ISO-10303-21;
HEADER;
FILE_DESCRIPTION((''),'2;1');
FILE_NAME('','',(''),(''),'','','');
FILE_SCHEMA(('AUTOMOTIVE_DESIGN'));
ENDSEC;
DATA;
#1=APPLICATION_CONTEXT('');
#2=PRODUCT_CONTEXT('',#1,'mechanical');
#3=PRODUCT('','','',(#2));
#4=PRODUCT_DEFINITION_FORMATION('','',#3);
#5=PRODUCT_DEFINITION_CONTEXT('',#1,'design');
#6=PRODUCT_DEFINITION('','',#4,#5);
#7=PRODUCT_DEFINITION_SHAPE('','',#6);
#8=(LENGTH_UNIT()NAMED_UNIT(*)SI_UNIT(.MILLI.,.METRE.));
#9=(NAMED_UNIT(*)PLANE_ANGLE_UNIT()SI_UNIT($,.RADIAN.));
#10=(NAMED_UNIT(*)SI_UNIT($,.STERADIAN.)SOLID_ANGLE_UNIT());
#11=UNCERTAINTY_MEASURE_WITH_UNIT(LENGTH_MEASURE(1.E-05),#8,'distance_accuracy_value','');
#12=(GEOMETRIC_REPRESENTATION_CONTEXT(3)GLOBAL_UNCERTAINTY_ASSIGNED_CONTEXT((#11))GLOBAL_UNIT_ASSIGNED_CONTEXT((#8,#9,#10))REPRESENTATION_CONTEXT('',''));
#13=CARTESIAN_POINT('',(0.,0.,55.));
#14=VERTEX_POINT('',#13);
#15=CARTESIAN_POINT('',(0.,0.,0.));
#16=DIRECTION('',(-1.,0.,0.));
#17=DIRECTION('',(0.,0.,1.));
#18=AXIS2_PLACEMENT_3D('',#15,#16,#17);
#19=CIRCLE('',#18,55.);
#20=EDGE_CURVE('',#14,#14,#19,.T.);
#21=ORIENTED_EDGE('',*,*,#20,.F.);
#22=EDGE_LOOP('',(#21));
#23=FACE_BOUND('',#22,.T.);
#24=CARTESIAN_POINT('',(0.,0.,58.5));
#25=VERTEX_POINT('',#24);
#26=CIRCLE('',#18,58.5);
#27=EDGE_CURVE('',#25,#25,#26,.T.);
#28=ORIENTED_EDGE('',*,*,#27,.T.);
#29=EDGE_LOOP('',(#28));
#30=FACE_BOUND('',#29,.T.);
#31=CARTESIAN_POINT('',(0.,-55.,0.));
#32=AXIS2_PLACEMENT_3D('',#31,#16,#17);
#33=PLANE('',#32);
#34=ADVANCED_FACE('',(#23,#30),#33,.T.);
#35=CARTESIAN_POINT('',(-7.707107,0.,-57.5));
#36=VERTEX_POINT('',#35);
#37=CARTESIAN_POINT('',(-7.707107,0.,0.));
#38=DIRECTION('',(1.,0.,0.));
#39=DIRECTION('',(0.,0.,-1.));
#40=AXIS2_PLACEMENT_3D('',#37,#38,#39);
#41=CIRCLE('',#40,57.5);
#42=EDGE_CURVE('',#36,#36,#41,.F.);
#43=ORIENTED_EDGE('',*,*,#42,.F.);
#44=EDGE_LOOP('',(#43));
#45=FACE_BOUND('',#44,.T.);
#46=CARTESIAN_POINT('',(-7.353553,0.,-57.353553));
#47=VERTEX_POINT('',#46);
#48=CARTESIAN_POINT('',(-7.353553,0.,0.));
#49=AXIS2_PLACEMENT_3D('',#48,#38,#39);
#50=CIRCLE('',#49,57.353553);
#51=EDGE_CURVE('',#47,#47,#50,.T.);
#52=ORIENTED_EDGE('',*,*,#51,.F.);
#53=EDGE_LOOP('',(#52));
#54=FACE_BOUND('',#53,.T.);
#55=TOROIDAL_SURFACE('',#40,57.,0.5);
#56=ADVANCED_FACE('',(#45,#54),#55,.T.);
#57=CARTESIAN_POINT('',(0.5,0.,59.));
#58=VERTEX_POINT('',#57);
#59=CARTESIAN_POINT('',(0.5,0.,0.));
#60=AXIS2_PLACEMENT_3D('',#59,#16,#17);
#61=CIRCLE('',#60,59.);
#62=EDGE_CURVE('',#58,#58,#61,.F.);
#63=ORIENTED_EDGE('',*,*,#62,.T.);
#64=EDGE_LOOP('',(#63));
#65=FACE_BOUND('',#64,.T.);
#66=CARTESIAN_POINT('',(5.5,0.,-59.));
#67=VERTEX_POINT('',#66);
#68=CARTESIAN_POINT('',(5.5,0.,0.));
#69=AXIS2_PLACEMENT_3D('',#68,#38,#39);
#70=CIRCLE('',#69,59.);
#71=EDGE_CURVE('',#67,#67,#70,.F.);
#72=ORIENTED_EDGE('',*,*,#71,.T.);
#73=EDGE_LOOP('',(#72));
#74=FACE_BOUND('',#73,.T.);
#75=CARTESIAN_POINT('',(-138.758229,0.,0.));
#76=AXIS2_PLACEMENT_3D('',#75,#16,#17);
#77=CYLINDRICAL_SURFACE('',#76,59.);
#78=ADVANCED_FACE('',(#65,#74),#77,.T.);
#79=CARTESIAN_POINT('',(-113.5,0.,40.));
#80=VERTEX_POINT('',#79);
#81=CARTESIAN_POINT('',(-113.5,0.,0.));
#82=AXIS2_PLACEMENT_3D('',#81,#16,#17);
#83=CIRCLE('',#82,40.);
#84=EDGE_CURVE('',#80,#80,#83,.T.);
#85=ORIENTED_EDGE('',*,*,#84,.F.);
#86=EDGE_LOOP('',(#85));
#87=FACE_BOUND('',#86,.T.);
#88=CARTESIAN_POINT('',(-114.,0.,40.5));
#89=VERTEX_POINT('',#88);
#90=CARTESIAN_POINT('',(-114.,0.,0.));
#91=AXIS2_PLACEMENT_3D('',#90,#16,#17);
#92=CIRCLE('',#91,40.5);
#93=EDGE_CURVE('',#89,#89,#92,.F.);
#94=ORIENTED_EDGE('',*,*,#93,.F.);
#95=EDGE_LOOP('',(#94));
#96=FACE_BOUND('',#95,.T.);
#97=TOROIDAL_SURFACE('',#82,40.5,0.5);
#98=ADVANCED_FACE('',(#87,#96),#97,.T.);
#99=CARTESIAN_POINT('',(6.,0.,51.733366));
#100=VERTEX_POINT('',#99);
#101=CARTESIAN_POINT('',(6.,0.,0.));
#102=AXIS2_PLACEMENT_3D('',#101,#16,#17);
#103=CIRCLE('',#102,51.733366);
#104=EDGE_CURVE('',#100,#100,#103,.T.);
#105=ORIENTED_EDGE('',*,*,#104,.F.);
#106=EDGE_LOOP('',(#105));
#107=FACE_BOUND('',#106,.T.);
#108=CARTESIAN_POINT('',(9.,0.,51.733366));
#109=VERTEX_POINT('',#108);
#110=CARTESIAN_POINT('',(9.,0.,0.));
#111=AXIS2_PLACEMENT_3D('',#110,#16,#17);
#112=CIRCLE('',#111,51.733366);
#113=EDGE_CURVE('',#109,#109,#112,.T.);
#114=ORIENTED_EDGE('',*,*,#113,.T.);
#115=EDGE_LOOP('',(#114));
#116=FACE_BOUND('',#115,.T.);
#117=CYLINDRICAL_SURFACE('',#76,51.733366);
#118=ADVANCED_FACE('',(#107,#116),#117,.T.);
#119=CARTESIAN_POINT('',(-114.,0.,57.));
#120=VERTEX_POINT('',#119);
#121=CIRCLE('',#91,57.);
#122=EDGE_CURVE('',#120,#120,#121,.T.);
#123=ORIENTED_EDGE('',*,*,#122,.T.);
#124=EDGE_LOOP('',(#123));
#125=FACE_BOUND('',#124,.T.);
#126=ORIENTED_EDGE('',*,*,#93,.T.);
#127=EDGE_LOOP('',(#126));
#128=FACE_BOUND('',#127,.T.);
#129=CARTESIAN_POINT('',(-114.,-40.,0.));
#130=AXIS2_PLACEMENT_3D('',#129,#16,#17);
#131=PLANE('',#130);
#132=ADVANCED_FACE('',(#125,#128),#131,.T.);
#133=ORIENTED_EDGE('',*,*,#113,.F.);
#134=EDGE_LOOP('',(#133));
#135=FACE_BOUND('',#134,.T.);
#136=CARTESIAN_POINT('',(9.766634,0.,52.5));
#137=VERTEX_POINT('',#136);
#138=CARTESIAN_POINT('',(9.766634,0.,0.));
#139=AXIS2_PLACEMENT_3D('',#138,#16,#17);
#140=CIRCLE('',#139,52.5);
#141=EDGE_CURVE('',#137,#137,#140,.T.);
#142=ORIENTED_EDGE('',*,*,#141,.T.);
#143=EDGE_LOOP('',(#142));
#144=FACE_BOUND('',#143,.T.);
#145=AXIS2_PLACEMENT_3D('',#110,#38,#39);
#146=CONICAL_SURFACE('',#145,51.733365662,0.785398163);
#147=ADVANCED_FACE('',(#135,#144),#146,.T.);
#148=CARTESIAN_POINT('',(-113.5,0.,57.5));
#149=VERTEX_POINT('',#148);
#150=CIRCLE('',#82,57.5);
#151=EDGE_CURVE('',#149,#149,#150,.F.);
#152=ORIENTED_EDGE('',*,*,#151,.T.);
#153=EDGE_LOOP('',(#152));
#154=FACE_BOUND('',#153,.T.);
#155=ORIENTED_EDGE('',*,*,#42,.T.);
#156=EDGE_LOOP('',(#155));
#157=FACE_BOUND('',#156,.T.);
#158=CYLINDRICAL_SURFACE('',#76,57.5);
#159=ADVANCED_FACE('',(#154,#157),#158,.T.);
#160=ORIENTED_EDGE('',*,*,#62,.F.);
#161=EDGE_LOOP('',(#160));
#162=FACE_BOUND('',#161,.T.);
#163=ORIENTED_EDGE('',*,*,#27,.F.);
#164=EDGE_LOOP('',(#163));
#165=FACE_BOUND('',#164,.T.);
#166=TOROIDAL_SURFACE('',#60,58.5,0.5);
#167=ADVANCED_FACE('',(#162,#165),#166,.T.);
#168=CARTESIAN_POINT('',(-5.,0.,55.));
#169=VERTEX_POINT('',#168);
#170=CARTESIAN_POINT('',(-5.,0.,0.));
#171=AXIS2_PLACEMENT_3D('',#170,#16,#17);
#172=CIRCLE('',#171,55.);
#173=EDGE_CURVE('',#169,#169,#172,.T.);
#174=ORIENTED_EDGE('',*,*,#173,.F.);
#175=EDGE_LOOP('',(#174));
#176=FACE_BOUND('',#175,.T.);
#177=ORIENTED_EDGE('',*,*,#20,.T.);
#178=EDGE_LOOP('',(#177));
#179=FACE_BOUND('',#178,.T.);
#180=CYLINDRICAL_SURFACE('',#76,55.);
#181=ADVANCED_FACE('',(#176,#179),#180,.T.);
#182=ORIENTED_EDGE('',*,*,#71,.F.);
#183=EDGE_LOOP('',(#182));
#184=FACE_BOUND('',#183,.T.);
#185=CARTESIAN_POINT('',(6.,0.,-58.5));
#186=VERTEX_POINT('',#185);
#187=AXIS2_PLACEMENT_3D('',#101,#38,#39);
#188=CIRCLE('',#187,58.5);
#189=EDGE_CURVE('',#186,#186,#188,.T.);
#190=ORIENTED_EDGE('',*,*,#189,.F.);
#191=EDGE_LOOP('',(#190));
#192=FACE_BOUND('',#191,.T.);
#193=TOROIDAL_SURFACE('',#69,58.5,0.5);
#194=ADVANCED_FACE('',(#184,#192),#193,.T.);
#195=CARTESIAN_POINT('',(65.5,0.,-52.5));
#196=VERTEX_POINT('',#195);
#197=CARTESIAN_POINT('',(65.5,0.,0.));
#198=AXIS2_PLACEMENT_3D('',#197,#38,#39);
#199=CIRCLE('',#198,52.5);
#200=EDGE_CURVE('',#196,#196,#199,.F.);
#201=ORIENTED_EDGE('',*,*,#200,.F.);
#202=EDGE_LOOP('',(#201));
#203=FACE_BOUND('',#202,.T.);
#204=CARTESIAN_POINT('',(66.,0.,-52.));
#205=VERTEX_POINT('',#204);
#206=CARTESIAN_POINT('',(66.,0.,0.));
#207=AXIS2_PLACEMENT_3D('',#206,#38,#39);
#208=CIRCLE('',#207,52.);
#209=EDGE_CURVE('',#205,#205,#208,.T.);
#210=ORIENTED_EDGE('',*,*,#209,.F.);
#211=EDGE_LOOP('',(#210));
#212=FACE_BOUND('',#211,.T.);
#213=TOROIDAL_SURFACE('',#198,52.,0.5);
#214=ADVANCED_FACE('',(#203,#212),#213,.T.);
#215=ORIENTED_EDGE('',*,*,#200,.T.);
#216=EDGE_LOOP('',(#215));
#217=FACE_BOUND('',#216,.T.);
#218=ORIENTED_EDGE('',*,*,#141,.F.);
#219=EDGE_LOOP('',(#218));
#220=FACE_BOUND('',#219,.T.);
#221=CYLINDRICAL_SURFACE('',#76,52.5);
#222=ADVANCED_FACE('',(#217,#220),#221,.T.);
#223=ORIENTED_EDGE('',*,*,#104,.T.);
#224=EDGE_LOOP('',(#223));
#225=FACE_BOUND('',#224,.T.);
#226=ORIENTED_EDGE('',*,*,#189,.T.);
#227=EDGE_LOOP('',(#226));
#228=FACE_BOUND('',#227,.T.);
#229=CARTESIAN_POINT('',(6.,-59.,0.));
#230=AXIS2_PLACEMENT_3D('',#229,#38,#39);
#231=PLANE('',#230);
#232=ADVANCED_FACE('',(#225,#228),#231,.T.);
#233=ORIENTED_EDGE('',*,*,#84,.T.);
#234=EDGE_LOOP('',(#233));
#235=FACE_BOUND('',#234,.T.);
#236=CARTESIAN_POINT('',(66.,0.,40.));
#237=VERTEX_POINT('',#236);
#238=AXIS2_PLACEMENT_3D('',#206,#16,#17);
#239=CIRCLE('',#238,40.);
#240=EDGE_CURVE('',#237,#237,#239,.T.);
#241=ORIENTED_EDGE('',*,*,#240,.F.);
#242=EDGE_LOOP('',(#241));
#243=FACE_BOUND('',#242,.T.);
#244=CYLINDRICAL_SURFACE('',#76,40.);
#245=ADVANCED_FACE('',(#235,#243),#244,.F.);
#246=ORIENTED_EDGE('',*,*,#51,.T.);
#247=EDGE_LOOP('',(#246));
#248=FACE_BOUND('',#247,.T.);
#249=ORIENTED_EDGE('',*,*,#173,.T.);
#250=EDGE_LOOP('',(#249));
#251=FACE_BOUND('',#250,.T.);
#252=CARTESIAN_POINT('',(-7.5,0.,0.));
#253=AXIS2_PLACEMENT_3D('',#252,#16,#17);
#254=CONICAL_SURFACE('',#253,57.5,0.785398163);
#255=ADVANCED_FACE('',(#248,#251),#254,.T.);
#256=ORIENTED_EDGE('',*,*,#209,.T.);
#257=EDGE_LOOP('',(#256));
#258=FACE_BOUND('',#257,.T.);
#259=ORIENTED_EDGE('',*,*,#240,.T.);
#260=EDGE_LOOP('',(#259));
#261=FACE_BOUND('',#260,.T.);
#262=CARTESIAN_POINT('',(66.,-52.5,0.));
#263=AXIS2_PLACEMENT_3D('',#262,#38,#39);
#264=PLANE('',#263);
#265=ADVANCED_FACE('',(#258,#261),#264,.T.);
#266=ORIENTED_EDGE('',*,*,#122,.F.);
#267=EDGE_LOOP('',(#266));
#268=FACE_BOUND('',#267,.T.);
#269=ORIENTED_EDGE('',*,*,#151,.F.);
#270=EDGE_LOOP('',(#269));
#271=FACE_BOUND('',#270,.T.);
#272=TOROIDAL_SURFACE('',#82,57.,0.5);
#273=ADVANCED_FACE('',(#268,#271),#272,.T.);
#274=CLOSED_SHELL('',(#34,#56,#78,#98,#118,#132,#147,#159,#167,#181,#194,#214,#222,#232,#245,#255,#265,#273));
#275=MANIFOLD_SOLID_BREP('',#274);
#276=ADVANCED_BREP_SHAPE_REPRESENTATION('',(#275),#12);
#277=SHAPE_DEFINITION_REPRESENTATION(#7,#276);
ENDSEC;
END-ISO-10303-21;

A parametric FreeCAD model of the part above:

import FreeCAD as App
import Part
import Sketcher
from FreeCAD import Vector
Q = App.Units.Quantity


def edges_at(feature, points):
    """Names of the edges that pass closest to the given points."""
    edges = feature.Shape.Edges
    near = lambda p: min(range(len(edges)), key=lambda i: edges[i].distToShape(Part.Vertex(*p))[0])
    return sorted({f"Edge{near(p) + 1}" for p in points})


def add_polygon(sketch, points):
    """Adds a closed chain of lines whose ends are joined by coincident constraints."""
    first, n = sketch.GeometryCount, len(points)
    for a, b in zip(points, points[1:] + points[:1]):
        sketch.addGeometry(Part.LineSegment(App.Vector(*a, 0), App.Vector(*b, 0)), False)
    for i in range(n):
        sketch.addConstraint(Sketcher.Constraint("Coincident", first + i, 2, first + (i + 1) % n, 1))

doc = App.newDocument("Part")
body = doc.addObject("PartDesign::Body", "Body")

# Sketch on XY plane
sketch1 = body.newObject("Sketcher::SketchObject", "Sketch")
sketch1.AttachmentSupport = (doc.getObject("XY_Plane"), [""])
sketch1.MapMode = "FlatFace"
add_polygon(sketch1, [(-114, -57.5), (-7.5, -57.5), (-5, -55), (0, -55), (0, -59), (6, -59), (6, -51.7), (9, -51.7), (9.8, -52.5), (66, -52.5), (66, -40), (-114, -40)])  # lines 0-11
sketch1.addConstraint([
    Sketcher.Constraint("Horizontal", 0),
    Sketcher.Constraint("Horizontal", 2),
    Sketcher.Constraint("Vertical", 3),
    Sketcher.Constraint("Horizontal", 4),
    Sketcher.Constraint("Vertical", 5),
    Sketcher.Constraint("Horizontal", 6),
    Sketcher.Constraint("Horizontal", 8),
    Sketcher.Constraint("Vertical", 9),
    Sketcher.Constraint("Horizontal", 10),
    Sketcher.Constraint("Vertical", 11),
    Sketcher.Constraint("PointOnObject", 2, 2, -2),
    Sketcher.Constraint("Perpendicular", 1, 7),
    Sketcher.Constraint("DistanceX", 2, 1, 2, 2, Q("5 mm")),
    Sketcher.Constraint("DistanceX", 4, 1, 4, 2, Q("6 mm")),
    Sketcher.Constraint("DistanceX", 6, 1, 6, 2, Q("3 mm")),
    Sketcher.Constraint("DistanceX", 10, 2, 10, 1, Q("180 mm")),
    Sketcher.Constraint("DistanceY", 3, 2, 3, 1, Q("4 mm")),
    Sketcher.Constraint("Angle", 1, Q("45 deg")),
    Sketcher.Constraint("DistanceX", 0, 1, 0, 2, Q("106.5 mm")),
    Sketcher.Constraint("DistanceY", 9, 1, 9, 2, Q("12.5 mm")),
    Sketcher.Constraint("DistanceY", 11, 2, 11, 1, Q("17.5 mm")),
    Sketcher.Constraint("DistanceY", 1, 2, -1, 1, Q("55 mm")),
    Sketcher.Constraint("DistanceX", -1, 1, 8, 2, Q("66 mm")),
    Sketcher.Constraint("DistanceX", 8, 1, 8, 2, Q("56.233366 mm")),
])
revolution = body.newObject("PartDesign::Revolution", "Revolution")
revolution.Profile = sketch1
revolution.ReferenceAxis = (sketch1, ["H_Axis"])
revolution.Angle = 360
doc.recompute()

fillet = body.newObject("PartDesign::Fillet", "Fillet")
fillet.Base = (revolution, edges_at(revolution, [
    (6, 0, -59),
    (0, 0, -59),
    (-7.5, 0, -57.5),
    (-114, 0, -57.5),
    (-114, 0, -40),
    (66, 0, -52.5),
]))
fillet.Radius = 0.5

doc.recompute()
